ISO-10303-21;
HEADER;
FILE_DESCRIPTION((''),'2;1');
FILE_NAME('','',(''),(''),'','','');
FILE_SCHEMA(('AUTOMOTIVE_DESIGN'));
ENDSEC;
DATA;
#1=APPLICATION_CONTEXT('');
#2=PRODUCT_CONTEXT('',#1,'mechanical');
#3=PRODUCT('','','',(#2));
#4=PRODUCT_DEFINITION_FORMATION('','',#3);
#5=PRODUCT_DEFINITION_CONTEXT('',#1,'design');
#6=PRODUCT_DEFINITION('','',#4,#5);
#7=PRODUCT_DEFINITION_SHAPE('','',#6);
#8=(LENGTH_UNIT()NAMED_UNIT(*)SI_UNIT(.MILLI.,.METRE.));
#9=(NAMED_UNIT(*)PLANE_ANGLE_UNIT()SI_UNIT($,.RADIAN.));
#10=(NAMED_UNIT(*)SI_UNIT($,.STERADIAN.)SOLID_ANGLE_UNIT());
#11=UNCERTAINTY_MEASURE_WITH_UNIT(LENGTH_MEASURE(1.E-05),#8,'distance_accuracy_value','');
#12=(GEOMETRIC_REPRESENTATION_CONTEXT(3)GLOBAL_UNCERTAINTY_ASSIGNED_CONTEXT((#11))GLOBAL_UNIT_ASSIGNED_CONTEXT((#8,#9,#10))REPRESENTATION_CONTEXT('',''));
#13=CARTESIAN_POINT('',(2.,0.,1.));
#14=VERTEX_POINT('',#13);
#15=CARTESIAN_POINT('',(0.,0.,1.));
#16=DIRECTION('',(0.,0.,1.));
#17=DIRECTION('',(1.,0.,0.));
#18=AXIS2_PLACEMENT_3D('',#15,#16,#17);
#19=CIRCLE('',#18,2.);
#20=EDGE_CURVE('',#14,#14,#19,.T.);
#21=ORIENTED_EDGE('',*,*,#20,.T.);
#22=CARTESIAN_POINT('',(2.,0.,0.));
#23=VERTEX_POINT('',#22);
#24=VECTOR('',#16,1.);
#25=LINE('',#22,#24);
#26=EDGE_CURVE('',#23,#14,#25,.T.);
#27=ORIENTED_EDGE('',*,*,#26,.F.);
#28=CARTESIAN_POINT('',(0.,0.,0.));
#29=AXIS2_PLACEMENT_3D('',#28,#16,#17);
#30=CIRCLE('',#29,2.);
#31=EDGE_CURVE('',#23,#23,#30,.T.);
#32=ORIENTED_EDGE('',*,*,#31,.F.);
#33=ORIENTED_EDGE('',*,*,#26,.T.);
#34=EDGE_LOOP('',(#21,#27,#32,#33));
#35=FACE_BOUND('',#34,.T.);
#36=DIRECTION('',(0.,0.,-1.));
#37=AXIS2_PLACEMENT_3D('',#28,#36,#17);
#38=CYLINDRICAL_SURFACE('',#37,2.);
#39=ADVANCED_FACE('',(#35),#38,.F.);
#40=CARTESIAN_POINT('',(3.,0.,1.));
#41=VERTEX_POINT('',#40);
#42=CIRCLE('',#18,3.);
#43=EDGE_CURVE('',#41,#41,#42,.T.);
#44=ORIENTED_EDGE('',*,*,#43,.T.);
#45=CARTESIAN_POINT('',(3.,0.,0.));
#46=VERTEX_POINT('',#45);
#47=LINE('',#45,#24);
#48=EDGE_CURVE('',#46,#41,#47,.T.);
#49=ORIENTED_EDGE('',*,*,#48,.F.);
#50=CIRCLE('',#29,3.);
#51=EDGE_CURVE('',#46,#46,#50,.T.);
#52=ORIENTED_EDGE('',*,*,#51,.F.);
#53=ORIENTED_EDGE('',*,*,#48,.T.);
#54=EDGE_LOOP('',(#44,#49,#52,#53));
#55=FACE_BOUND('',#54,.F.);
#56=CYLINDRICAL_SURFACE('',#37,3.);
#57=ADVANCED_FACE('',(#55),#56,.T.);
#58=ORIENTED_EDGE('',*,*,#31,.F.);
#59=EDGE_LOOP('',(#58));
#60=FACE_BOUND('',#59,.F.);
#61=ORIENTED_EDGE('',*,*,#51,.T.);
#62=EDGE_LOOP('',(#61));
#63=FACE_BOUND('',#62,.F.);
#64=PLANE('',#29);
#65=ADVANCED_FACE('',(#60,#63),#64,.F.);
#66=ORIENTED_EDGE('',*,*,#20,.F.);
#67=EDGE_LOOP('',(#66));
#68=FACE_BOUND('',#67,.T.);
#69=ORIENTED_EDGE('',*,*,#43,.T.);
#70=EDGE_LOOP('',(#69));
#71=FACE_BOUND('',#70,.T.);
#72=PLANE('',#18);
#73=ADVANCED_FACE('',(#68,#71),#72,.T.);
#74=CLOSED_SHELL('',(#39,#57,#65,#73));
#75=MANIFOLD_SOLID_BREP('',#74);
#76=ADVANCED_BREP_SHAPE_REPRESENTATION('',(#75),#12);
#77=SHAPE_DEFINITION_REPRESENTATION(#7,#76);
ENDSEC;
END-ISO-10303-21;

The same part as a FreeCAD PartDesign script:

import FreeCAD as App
import Part
import Sketcher

V = App.Vector
Q = App.Units.Quantity

doc = App.newDocument("Part")
params = doc.addObject("Spreadsheet::Sheet", "Params")
for row, (alias, value) in enumerate([
    ("sketch1_diameter", "6 mm"),
    ("sketch1_diameter2", "4 mm"),
    ("pad1_length", "1 mm"),
], start=1):
    params.set(f"A{row}", alias)
    params.set(f"B{row}", "=" + value)
    params.setAlias(f"B{row}", alias)

body = doc.addObject("PartDesign::Body", "Body")

sketch1 = doc.addObject("Sketcher::SketchObject", "Sketch")
body.addObject(sketch1)
sketch1.AttachmentSupport = (doc.XY_Plane, [""])
sketch1.MapMode = "FlatFace"
sketch1.addGeometry(Part.Circle(V(0, 0, 0), V(0, 0, 1), 3), False)
sketch1.addGeometry(Part.Circle(V(0, 0, 0), V(0, 0, 1), 2), False)
sketch1.addConstraint(Sketcher.Constraint("Coincident", 0, 3, -1, 1))
sketch1.addConstraint(Sketcher.Constraint("Coincident", 1, 3, -1, 1))
sketch1.addConstraint(Sketcher.Constraint("Diameter", 0, Q("6 mm")))
sketch1.addConstraint(Sketcher.Constraint("Diameter", 1, Q("4 mm")))
sketch1.setExpression("Constraints[2]", "Params.sketch1_diameter")
sketch1.setExpression("Constraints[3]", "Params.sketch1_diameter2")
pad1 = doc.addObject("PartDesign::Pad", "Pad")
body.addObject(pad1)
pad1.Profile = sketch1
pad1.setExpression("Length", "Params.pad1_length")

doc.recompute()
